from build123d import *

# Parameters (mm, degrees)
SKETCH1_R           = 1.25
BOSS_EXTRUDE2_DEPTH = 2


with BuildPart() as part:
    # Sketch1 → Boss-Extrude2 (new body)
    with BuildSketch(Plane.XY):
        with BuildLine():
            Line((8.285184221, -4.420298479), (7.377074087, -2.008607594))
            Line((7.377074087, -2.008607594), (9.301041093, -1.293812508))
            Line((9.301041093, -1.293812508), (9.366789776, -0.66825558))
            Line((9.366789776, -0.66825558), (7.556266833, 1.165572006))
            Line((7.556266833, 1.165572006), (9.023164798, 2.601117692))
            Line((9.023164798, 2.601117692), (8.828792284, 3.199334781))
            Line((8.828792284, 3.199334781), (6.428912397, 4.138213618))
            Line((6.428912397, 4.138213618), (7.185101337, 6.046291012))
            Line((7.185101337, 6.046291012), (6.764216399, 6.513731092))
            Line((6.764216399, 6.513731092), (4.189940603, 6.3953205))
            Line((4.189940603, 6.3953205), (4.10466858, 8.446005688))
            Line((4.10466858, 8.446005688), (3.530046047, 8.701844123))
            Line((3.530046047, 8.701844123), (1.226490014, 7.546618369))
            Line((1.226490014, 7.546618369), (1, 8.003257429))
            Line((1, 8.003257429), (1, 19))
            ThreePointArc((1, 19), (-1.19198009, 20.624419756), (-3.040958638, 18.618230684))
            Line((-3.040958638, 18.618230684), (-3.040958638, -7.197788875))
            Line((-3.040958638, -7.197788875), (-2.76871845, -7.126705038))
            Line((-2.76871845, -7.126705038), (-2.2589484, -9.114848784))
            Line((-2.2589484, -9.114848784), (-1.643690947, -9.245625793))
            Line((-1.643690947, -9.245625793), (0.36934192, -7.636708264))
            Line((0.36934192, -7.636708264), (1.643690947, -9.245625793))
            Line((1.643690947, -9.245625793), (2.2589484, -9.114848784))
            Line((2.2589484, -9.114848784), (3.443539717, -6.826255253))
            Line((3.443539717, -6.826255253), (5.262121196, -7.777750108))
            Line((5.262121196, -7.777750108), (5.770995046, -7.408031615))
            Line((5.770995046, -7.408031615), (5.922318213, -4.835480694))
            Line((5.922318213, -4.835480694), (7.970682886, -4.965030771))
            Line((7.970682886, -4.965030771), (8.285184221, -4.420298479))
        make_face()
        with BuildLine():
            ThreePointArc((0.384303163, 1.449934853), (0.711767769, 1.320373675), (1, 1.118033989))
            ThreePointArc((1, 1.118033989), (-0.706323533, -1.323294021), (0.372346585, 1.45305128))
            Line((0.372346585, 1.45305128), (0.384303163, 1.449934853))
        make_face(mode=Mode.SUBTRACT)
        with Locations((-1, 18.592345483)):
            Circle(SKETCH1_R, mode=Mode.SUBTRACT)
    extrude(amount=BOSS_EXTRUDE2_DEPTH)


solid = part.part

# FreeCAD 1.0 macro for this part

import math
import FreeCAD as App
import Part
import Sketcher

V = App.Vector
Q = App.Units.Quantity

doc = App.newDocument("Part")
body = doc.addObject("PartDesign::Body", "Body")

sketch1 = body.newObject("Sketcher::SketchObject", "Sketch")
sketch1.AttachmentSupport = (doc.getObject("XY_Plane"), [""])
sketch1.MapMode = "FlatFace"
sketch1.addGeometry(Part.LineSegment(V(8.285184, -4.420298, 0), V(7.377074, -2.008608, 0)), False)
sketch1.addGeometry(Part.LineSegment(V(7.377074, -2.008608, 0), V(9.301041, -1.293813, 0)), False)
sketch1.addGeometry(Part.LineSegment(V(9.301041, -1.293813, 0), V(9.36679, -0.668256, 0)), False)
sketch1.addGeometry(Part.LineSegment(V(9.36679, -0.668256, 0), V(7.556267, 1.165572, 0)), False)
sketch1.addGeometry(Part.LineSegment(V(7.556267, 1.165572, 0), V(9.023165, 2.601118, 0)), False)
sketch1.addGeometry(Part.LineSegment(V(9.023165, 2.601118, 0), V(8.828792, 3.199335, 0)), False)
sketch1.addGeometry(Part.LineSegment(V(8.828792, 3.199335, 0), V(6.428912, 4.138214, 0)), False)
sketch1.addGeometry(Part.LineSegment(V(6.428912, 4.138214, 0), V(7.185101, 6.046291, 0)), False)
sketch1.addGeometry(Part.LineSegment(V(7.185101, 6.046291, 0), V(6.764216, 6.513731, 0)), False)
sketch1.addGeometry(Part.LineSegment(V(6.764216, 6.513731, 0), V(4.189941, 6.395321, 0)), False)
sketch1.addGeometry(Part.LineSegment(V(4.189941, 6.395321, 0), V(4.104669, 8.446006, 0)), False)
sketch1.addGeometry(Part.LineSegment(V(4.104669, 8.446006, 0), V(3.530046, 8.701844, 0)), False)
sketch1.addGeometry(Part.LineSegment(V(3.530046, 8.701844, 0), V(1.22649, 7.546618, 0)), False)
sketch1.addGeometry(Part.LineSegment(V(1.22649, 7.546618, 0), V(1, 8.003257, 0)), False)
sketch1.addGeometry(Part.LineSegment(V(1, 8.003257, 0), V(1, 19, 0)), False)
sketch1.addGeometry(Part.ArcOfCircle(Part.Circle(V(-1, 18.592345, 0), V(0, 0, 1), 2.041123), math.radians(11.520628), math.radians(179.273364)), False)
sketch1.addGeometry(Part.LineSegment(V(-3.040959, 18.618231, 0), V(-3.040959, -7.197789, 0)), False)
sketch1.addGeometry(Part.LineSegment(V(-3.040959, -7.197789, 0), V(-2.768718, -7.126705, 0)), False)
sketch1.addGeometry(Part.LineSegment(V(-2.768718, -7.126705, 0), V(-2.258948, -9.114849, 0)), False)
sketch1.addGeometry(Part.LineSegment(V(-2.258948, -9.114849, 0), V(-1.643691, -9.245626, 0)), False)
sketch1.addGeometry(Part.LineSegment(V(-1.643691, -9.245626, 0), V(0.369342, -7.636708, 0)), False)
sketch1.addGeometry(Part.LineSegment(V(0.369342, -7.636708, 0), V(1.643691, -9.245626, 0)), False)
sketch1.addGeometry(Part.LineSegment(V(1.643691, -9.245626, 0), V(2.258948, -9.114849, 0)), False)
sketch1.addGeometry(Part.LineSegment(V(2.258948, -9.114849, 0), V(3.44354, -6.826255, 0)), False)
sketch1.addGeometry(Part.LineSegment(V(3.44354, -6.826255, 0), V(5.262121, -7.77775, 0)), False)
sketch1.addGeometry(Part.LineSegment(V(5.262121, -7.77775, 0), V(5.770995, -7.408032, 0)), False)
sketch1.addGeometry(Part.LineSegment(V(5.770995, -7.408032, 0), V(5.922318, -4.835481, 0)), False)
sketch1.addGeometry(Part.LineSegment(V(5.922318, -4.835481, 0), V(7.970683, -4.965031, 0)), False)
sketch1.addGeometry(Part.LineSegment(V(7.970683, -4.965031, 0), V(8.285184, -4.420298, 0)), False)
sketch1.addGeometry(Part.LineSegment(V(0.372347, 1.453051, 0), V(0.384303, 1.449935, 0)), False)
sketch1.addGeometry(Part.ArcOfCircle(Part.Circle(V(0, 0, 0), V(0, 0, 1), 1.5), math.radians(48.189685), math.radians(75.155172)), False)
sketch1.addGeometry(Part.ArcOfCircle(Part.Circle(V(0, 0, 0), V(0, 0, 1), 1.5), math.radians(75.62714), math.radians(408.189685)), False)
sketch1.addGeometry(Part.Circle(V(-1, 18.592345, 0), V(0, 0, 1), 1.25), False)
sketch1.addConstraint(Sketcher.Constraint("Coincident", 0, 2, 1, 1))
sketch1.addConstraint(Sketcher.Constraint("Coincident", 1, 2, 2, 1))
sketch1.addConstraint(Sketcher.Constraint("Coincident", 2, 2, 3, 1))
sketch1.addConstraint(Sketcher.Constraint("Coincident", 3, 2, 4, 1))
sketch1.addConstraint(Sketcher.Constraint("Coincident", 4, 2, 5, 1))
sketch1.addConstraint(Sketcher.Constraint("Coincident", 5, 2, 6, 1))
sketch1.addConstraint(Sketcher.Constraint("Coincident", 6, 2, 7, 1))
sketch1.addConstraint(Sketcher.Constraint("Coincident", 7, 2, 8, 1))
sketch1.addConstraint(Sketcher.Constraint("Coincident", 8, 2, 9, 1))
sketch1.addConstraint(Sketcher.Constraint("Coincident", 9, 2, 10, 1))
sketch1.addConstraint(Sketcher.Constraint("Coincident", 10, 2, 11, 1))
sketch1.addConstraint(Sketcher.Constraint("Coincident", 11, 2, 12, 1))
sketch1.addConstraint(Sketcher.Constraint("Coincident", 12, 2, 13, 1))
sketch1.addConstraint(Sketcher.Constraint("Coincident", 13, 2, 14, 1))
sketch1.addConstraint(Sketcher.Constraint("Coincident", 14, 2, 15, 1))
sketch1.addConstraint(Sketcher.Constraint("Coincident", 15, 2, 16, 1))
sketch1.addConstraint(Sketcher.Constraint("Coincident", 16, 2, 17, 1))
sketch1.addConstraint(Sketcher.Constraint("Coincident", 17, 2, 18, 1))
sketch1.addConstraint(Sketcher.Constraint("Coincident", 18, 2, 19, 1))
sketch1.addConstraint(Sketcher.Constraint("Coincident", 19, 2, 20, 1))
sketch1.addConstraint(Sketcher.Constraint("Coincident", 20, 2, 21, 1))
sketch1.addConstraint(Sketcher.Constraint("Coincident", 21, 2, 22, 1))
sketch1.addConstraint(Sketcher.Constraint("Coincident", 22, 2, 23, 1))
sketch1.addConstraint(Sketcher.Constraint("Coincident", 23, 2, 24, 1))
sketch1.addConstraint(Sketcher.Constraint("Coincident", 24, 2, 25, 1))
sketch1.addConstraint(Sketcher.Constraint("Coincident", 25, 2, 26, 1))
sketch1.addConstraint(Sketcher.Constraint("Coincident", 26, 2, 27, 1))
sketch1.addConstraint(Sketcher.Constraint("Coincident", 27, 2, 28, 1))
sketch1.addConstraint(Sketcher.Constraint("Coincident", 28, 2, 0, 1))
sketch1.addConstraint(Sketcher.Constraint("Coincident", 29, 2, 30, 2))
sketch1.addConstraint(Sketcher.Constraint("Tangent", 30, 1, 31, 2))
sketch1.addConstraint(Sketcher.Constraint("Coincident", 31, 1, 29, 1))
sketch1.addConstraint(Sketcher.Constraint("Vertical", 14))
sketch1.addConstraint(Sketcher.Constraint("Vertical", 16))
sketch1.addConstraint(Sketcher.Constraint("Coincident", 30, 3, -1, 1))
sketch1.addConstraint(Sketcher.Constraint("Coincident", 32, 3, 15, 3))
sketch1.addConstraint(Sketcher.Constraint("Equal", 30, 31))
sketch1.addConstraint(Sketcher.Constraint("Symmetric", 19, 2, 21, 2, -2))
sketch1.addConstraint(Sketcher.Constraint("Symmetric", 18, 2, 22, 2, -2))
sketch1.addConstraint(Sketcher.Constraint("Vertical", 14, 2, 30, 1))
sketch1.addConstraint(Sketcher.Constraint("Equal", 0, 3))
sketch1.addConstraint(Sketcher.Constraint("Equal", 1, 4))
sketch1.addConstraint(Sketcher.Constraint("Equal", 2, 5))
sketch1.addConstraint(Sketcher.Constraint("Equal", 3, 6))
sketch1.addConstraint(Sketcher.Constraint("Equal", 4, 7))
sketch1.addConstraint(Sketcher.Constraint("Equal", 5, 8))
sketch1.addConstraint(Sketcher.Constraint("Equal", 6, 9))
sketch1.addConstraint(Sketcher.Constraint("Equal", 7, 10))
sketch1.addConstraint(Sketcher.Constraint("Equal", 8, 11))
sketch1.addConstraint(Sketcher.Constraint("Equal", 9, 12))
sketch1.addConstraint(Sketcher.Constraint("Equal", 10, 18))
sketch1.addConstraint(Sketcher.Constraint("Equal", 11, 19))
sketch1.addConstraint(Sketcher.Constraint("Equal", 12, 20))
sketch1.addConstraint(Sketcher.Constraint("Equal", 18, 21))
sketch1.addConstraint(Sketcher.Constraint("Equal", 20, 23))
sketch1.addConstraint(Sketcher.Constraint("Equal", 21, 24))
sketch1.addConstraint(Sketcher.Constraint("Equal", 22, 25))
sketch1.addConstraint(Sketcher.Constraint("Equal", 23, 26))
sketch1.addConstraint(Sketcher.Constraint("Equal", 24, 27))
sketch1.addConstraint(Sketcher.Constraint("Equal", 25, 28))
sketch1.addConstraint(Sketcher.Constraint("Diameter", 32, 2.5))
sketch1.addConstraint(Sketcher.Constraint("Radius", 30, 1.5))
sketch1.addConstraint(Sketcher.Constraint("Angle", 2, Q("84 deg")))
sketch1.addConstraint(Sketcher.Constraint("Angle", 5, Q("108 deg")))
sketch1.addConstraint(Sketcher.Constraint("Angle", 8, Q("132 deg")))
sketch1.addConstraint(Sketcher.Constraint("Angle", 11, Q("156 deg")))
sketch1.addConstraint(Sketcher.Constraint("Angle", 19, Q("-12 deg")))
sketch1.addConstraint(Sketcher.Constraint("Angle", 25, Q("36 deg")))
sketch1.addConstraint(Sketcher.Constraint("Angle", 28, Q("60 deg")))
sketch1.addConstraint(Sketcher.Constraint("DistanceX", 15, 3, -1, 1, 1.0))
sketch1.addConstraint(Sketcher.Constraint("DistanceX", -1, 1, 13, 2, 1.0))
sketch1.addConstraint(Sketcher.Constraint("DistanceY", -1, 1, 14, 2, 19.0))
sketch1.addConstraint(Sketcher.Constraint("Radius", 15, 2.041123))
sketch1.addConstraint(Sketcher.Constraint("DistanceX", 16, 2, 1, 2, 12.342))
sketch1.addConstraint(Sketcher.Constraint("DistanceY", 25, 2, 27, 2, 2.443001))
sketch1.addConstraint(Sketcher.Constraint("DistanceY", 16, 2, 16, 1, 25.81602))
sketch1.addConstraint(Sketcher.Constraint("DistanceX", -1, 1, 7, 2, 7.185101))
sketch1.addConstraint(Sketcher.Constraint("DistanceY", 28, 2, -1, 1, 4.420298))
sketch1.addConstraint(Sketcher.Constraint("DistanceY", 2, 2, 15, 3, 19.260601))
sketch1.addConstraint(Sketcher.Constraint("DistanceX", 16, 2, 20, 2, 3.410301))
sketch1.addConstraint(Sketcher.Constraint("DistanceY", 22, 2, 24, 2, 1.337099))
sketch1.addConstraint(Sketcher.Constraint("DistanceX", 27, 2, 28, 2, 0.314501))
sketch1.addConstraint(Sketcher.Constraint("DistanceY", 30, 1, 29, 2, 0.331901))
sketch1.addConstraint(Sketcher.Constraint("DistanceY", 14, 1, 14, 2, 10.996743))
sketch1.addConstraint(Sketcher.Constraint("DistanceX", -1, 1, 1, 2, 9.301041))
sketch1.addConstraint(Sketcher.Constraint("DistanceY", -1, 1, 7, 2, 6.046291))
sketch1.addConstraint(Sketcher.Constraint("DistanceX", -1, 1, 9, 2, 4.189941))
sketch1.addConstraint(Sketcher.Constraint("DistanceY", -1, 1, 9, 2, 6.395321))
sketch1.addConstraint(Sketcher.Constraint("DistanceX", -1, 1, 10, 2, 4.104669))
sketch1.addConstraint(Sketcher.Constraint("DistanceX", -1, 1, 12, 2, 1.22649))
sketch1.addConstraint(Sketcher.Constraint("DistanceY", -1, 1, 12, 2, 7.546618))
sketch1.addConstraint(Sketcher.Constraint("DistanceX", 17, 2, -1, 1, 2.768718))
sketch1.addConstraint(Sketcher.Constraint("DistanceX", -1, 1, 23, 2, 3.44354))
sketch1.addConstraint(Sketcher.Constraint("DistanceX", -1, 1, 26, 2, 5.922318))
sketch1.addConstraint(Sketcher.Constraint("DistanceY", -1, 1, 31, 1, 1.453051))
sketch1.addConstraint(Sketcher.Constraint("DistanceY", 0, 2, 3, 2, 3.17418))
sketch1.addConstraint(Sketcher.Constraint("DistanceY", 1, 2, 4, 2, 3.89493))
pad1 = body.newObject("PartDesign::Pad", "Pad")
pad1.Profile = sketch1
pad1.Length = 2

doc.recompute()
